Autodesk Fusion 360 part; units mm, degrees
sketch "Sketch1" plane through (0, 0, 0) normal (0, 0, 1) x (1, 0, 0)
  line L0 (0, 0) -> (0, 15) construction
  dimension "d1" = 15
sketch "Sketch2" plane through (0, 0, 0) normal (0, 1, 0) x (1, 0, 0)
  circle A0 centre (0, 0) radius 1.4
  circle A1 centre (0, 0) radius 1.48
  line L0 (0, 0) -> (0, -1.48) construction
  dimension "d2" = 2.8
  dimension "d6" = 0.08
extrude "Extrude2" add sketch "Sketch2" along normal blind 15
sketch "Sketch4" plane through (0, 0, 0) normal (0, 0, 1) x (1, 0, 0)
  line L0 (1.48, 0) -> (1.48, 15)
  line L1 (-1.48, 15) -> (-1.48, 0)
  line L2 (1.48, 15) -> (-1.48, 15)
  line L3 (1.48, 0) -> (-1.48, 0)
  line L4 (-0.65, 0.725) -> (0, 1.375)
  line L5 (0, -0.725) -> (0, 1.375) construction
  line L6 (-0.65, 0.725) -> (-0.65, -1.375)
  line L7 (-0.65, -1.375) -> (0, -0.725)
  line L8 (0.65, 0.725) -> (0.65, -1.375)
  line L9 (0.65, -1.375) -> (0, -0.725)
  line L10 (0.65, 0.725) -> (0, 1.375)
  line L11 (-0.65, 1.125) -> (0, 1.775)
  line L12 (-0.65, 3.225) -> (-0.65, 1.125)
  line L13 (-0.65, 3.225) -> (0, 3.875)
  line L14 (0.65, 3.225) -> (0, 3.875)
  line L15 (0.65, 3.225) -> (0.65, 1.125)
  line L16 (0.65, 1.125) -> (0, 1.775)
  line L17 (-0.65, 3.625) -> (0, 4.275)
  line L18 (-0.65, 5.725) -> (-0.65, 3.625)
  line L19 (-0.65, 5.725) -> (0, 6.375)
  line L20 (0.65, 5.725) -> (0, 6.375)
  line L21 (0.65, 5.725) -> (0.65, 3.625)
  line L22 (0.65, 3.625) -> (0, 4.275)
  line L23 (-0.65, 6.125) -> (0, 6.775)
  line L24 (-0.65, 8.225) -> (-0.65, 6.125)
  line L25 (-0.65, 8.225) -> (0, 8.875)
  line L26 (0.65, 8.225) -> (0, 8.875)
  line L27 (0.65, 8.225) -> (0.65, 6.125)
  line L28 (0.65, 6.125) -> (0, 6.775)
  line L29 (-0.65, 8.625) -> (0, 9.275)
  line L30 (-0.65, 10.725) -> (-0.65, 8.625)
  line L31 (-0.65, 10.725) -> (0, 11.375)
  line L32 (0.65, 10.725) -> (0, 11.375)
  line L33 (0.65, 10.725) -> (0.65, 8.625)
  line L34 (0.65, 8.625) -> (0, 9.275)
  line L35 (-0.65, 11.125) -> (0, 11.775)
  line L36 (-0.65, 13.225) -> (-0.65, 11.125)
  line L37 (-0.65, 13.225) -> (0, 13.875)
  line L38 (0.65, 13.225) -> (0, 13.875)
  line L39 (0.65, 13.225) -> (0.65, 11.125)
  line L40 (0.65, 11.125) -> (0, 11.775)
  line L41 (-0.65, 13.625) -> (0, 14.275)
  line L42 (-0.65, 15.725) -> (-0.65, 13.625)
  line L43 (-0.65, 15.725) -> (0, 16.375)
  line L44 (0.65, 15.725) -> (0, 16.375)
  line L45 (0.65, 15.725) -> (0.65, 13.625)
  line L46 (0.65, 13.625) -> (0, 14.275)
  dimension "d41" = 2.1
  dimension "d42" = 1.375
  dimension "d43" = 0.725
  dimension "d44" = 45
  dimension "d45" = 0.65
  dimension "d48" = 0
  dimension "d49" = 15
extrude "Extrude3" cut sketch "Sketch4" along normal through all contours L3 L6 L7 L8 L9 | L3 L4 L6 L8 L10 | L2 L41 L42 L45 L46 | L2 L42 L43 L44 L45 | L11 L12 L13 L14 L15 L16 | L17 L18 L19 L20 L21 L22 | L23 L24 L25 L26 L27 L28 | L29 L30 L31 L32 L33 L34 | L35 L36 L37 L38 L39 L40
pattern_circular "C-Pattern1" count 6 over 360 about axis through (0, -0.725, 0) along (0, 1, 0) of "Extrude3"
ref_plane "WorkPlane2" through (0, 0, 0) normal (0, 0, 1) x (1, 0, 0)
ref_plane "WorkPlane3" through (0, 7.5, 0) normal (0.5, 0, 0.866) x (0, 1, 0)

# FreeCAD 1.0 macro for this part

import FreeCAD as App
import Part
import Sketcher

V = App.Vector


def add_polygon(sketch, points):
    """Adds a closed chain of lines whose ends are joined by coincident constraints."""
    first, n = sketch.GeometryCount, len(points)
    for a, b in zip(points, points[1:] + points[:1]):
        sketch.addGeometry(Part.LineSegment(App.Vector(*a, 0), App.Vector(*b, 0)), False)
    for i in range(n):
        sketch.addConstraint(Sketcher.Constraint("Coincident", first + i, 2, first + (i + 1) % n, 1))

doc = App.newDocument("Part")
body = doc.addObject("PartDesign::Body", "Body")

sketch1 = body.newObject("Sketcher::SketchObject", "Sketch")
sketch1.AttachmentSupport = (doc.getObject("XZ_Plane"), [""])
sketch1.MapMode = "FlatFace"
sketch1.addGeometry([
    Part.Circle(V(0, 0, 0), V(0, 0, 1), 1.5),
    Part.Circle(V(0, 0, 0), V(0, 0, 1), 1.4),
], False)
sketch1.addConstraint([
    Sketcher.Constraint("Coincident", 0, 3, -1, 1),
    Sketcher.Constraint("Coincident", 1, 3, -1, 1),
    Sketcher.Constraint("Diameter", 1, 2.8),
    Sketcher.Constraint("Diameter", 0, 2.96),
])
pad1 = body.newObject("PartDesign::Pad", "Pad")
pad1.Profile = sketch1
pad1.Length = 15
pad1.Reversed = True

sketch2 = body.newObject("Sketcher::SketchObject", "Sketch001")
sketch2.AttachmentSupport = (doc.getObject("XY_Plane"), [""])
sketch2.MapMode = "FlatFace"
add_polygon(sketch2, [(0.7, -1.4), (0.7, 0.7), (0, 1.4), (-0.7, 0.7), (-0.7, -1.4), (0, -0.7)])
add_polygon(sketch2, [(0.7, 13.6), (0.7, 15.7), (0, 16.4), (-0.7, 15.7), (-0.7, 13.6), (0, 14.3)])
add_polygon(sketch2, [(-0.7, 3.2), (-0.7, 1.1), (0, 1.8), (0.7, 1.1), (0.7, 3.2), (0, 3.9)])
add_polygon(sketch2, [(-0.7, 5.7), (-0.7, 3.6), (0, 4.3), (0.7, 3.6), (0.7, 5.7), (0, 6.4)])
add_polygon(sketch2, [(-0.7, 8.2), (-0.7, 6.1), (0, 6.8), (0.7, 6.1), (0.7, 8.2), (0, 8.9)])
add_polygon(sketch2, [(-0.7, 10.7), (-0.7, 8.6), (0, 9.3), (0.7, 8.6), (0.7, 10.7), (0, 11.4)])
add_polygon(sketch2, [(-0.7, 13.2), (-0.7, 11.1), (0, 11.8), (0.7, 11.1), (0.7, 13.2), (0, 13.9)])
sketch2.addConstraint([
    Sketcher.Constraint("Vertical", 0),
    Sketcher.Constraint("Vertical", 3),
    Sketcher.Constraint("Vertical", 6),
    Sketcher.Constraint("Vertical", 9),
    Sketcher.Constraint("Vertical", 12),
    Sketcher.Constraint("Vertical", 15),
    Sketcher.Constraint("Vertical", 18),
    Sketcher.Constraint("Vertical", 21),
    Sketcher.Constraint("Vertical", 24),
    Sketcher.Constraint("Vertical", 27),
    Sketcher.Constraint("Vertical", 30),
    Sketcher.Constraint("Vertical", 33),
    Sketcher.Constraint("Vertical", 36),
    Sketcher.Constraint("Vertical", 39),
    Sketcher.Constraint("Symmetric", 0, 2, 2, 2, -2),
    Sketcher.Constraint("Symmetric", 6, 2, 8, 2, -2),
    Sketcher.Constraint("Symmetric", 12, 2, 14, 2, -2),
    Sketcher.Constraint("Symmetric", 18, 2, 20, 2, -2),
    Sketcher.Constraint("Symmetric", 24, 2, 26, 2, -2),
    Sketcher.Constraint("Symmetric", 30, 2, 32, 2, -2),
    Sketcher.Constraint("Symmetric", 36, 2, 38, 2, -2),
    Sketcher.Constraint("PointOnObject", 1, 2, -2),
    Sketcher.Constraint("PointOnObject", 4, 2, -2),
    Sketcher.Constraint("PointOnObject", 7, 2, -2),
    Sketcher.Constraint("PointOnObject", 10, 2, -2),
    Sketcher.Constraint("PointOnObject", 13, 2, -2),
    Sketcher.Constraint("PointOnObject", 16, 2, -2),
    Sketcher.Constraint("PointOnObject", 19, 2, -2),
    Sketcher.Constraint("PointOnObject", 22, 2, -2),
    Sketcher.Constraint("PointOnObject", 25, 2, -2),
    Sketcher.Constraint("PointOnObject", 28, 2, -2),
    Sketcher.Constraint("PointOnObject", 31, 2, -2),
    Sketcher.Constraint("PointOnObject", 34, 2, -2),
    Sketcher.Constraint("PointOnObject", 37, 2, -2),
    Sketcher.Constraint("PointOnObject", 40, 2, -2),
    Sketcher.Constraint("Perpendicular", 1, 2),
    Sketcher.Constraint("Parallel", 2, 4),
    Sketcher.Constraint("Perpendicular", 4, 5),
    Sketcher.Constraint("Parallel", 5, 7),
    Sketcher.Constraint("Parallel", 8, 10),
    Sketcher.Constraint("Perpendicular", 10, 11),
    Sketcher.Constraint("Perpendicular", 11, 13),
    Sketcher.Constraint("Parallel", 14, 16),
    Sketcher.Constraint("Perpendicular", 16, 17),
    Sketcher.Constraint("Parallel", 17, 19),
    Sketcher.Constraint("Parallel", 20, 22),
    Sketcher.Constraint("Perpendicular", 22, 23),
    Sketcher.Constraint("Parallel", 23, 25),
    Sketcher.Constraint("Parallel", 26, 28),
    Sketcher.Constraint("Perpendicular", 28, 29),
    Sketcher.Constraint("Parallel", 29, 31),
    Sketcher.Constraint("Parallel", 32, 34),
    Sketcher.Constraint("Perpendicular", 34, 35),
    Sketcher.Constraint("Parallel", 35, 37),
    Sketcher.Constraint("Parallel", 38, 40),
    Sketcher.Constraint("Perpendicular", 40, 41),
    Sketcher.Constraint("Vertical", 5, 2, 6, 2),
    Sketcher.Constraint("Vertical", 9, 2, 12, 2),
    Sketcher.Constraint("Vertical", 17, 2, 18, 2),
    Sketcher.Constraint("Vertical", 23, 2, 24, 2),
    Sketcher.Constraint("Vertical", 29, 2, 30, 2),
    Sketcher.Constraint("Vertical", 35, 2, 36, 2),
    Sketcher.Constraint("Equal", 3, 6),
    Sketcher.Constraint("Equal", 9, 12),
    Sketcher.Constraint("Equal", 15, 18),
    Sketcher.Constraint("Equal", 21, 24),
    Sketcher.Constraint("Equal", 27, 30),
    Sketcher.Constraint("Equal", 33, 36),
    Sketcher.Constraint("DistanceY", 0, 1, 0, 2, 2.1),
    Sketcher.Constraint("DistanceY", 0, 2, 6, 2, 15.0),
    Sketcher.Constraint("DistanceX", -1, 1, 0, 2, 0.65),
    Sketcher.Constraint("DistanceY", -1, 1, 0, 2, 0.725),
    Sketcher.Constraint("DistanceY", 2, 2, 12, 2, 0.4),
    Sketcher.Constraint("DistanceY", 17, 2, 18, 2, 0.4),
    Sketcher.Constraint("DistanceY", 23, 2, 24, 2, 0.4),
    Sketcher.Constraint("DistanceY", 29, 2, 30, 2, 0.4),
    Sketcher.Constraint("DistanceY", 35, 2, 36, 2, 0.4),
])
pocket1 = body.newObject("PartDesign::Pocket", "Pocket")
pocket1.Profile = sketch2
pocket1.Type = "ThroughAll"
pocket1.Reversed = True
doc.recompute()

polarpattern = body.newObject("PartDesign::PolarPattern", "PolarPattern")
polarpattern.Originals = [pocket1]
polarpattern.Axis = (doc.getObject("Y_Axis"), [""])
polarpattern.Angle = 360
polarpattern.Occurrences = 6
body.Tip = polarpattern

doc.recompute()
